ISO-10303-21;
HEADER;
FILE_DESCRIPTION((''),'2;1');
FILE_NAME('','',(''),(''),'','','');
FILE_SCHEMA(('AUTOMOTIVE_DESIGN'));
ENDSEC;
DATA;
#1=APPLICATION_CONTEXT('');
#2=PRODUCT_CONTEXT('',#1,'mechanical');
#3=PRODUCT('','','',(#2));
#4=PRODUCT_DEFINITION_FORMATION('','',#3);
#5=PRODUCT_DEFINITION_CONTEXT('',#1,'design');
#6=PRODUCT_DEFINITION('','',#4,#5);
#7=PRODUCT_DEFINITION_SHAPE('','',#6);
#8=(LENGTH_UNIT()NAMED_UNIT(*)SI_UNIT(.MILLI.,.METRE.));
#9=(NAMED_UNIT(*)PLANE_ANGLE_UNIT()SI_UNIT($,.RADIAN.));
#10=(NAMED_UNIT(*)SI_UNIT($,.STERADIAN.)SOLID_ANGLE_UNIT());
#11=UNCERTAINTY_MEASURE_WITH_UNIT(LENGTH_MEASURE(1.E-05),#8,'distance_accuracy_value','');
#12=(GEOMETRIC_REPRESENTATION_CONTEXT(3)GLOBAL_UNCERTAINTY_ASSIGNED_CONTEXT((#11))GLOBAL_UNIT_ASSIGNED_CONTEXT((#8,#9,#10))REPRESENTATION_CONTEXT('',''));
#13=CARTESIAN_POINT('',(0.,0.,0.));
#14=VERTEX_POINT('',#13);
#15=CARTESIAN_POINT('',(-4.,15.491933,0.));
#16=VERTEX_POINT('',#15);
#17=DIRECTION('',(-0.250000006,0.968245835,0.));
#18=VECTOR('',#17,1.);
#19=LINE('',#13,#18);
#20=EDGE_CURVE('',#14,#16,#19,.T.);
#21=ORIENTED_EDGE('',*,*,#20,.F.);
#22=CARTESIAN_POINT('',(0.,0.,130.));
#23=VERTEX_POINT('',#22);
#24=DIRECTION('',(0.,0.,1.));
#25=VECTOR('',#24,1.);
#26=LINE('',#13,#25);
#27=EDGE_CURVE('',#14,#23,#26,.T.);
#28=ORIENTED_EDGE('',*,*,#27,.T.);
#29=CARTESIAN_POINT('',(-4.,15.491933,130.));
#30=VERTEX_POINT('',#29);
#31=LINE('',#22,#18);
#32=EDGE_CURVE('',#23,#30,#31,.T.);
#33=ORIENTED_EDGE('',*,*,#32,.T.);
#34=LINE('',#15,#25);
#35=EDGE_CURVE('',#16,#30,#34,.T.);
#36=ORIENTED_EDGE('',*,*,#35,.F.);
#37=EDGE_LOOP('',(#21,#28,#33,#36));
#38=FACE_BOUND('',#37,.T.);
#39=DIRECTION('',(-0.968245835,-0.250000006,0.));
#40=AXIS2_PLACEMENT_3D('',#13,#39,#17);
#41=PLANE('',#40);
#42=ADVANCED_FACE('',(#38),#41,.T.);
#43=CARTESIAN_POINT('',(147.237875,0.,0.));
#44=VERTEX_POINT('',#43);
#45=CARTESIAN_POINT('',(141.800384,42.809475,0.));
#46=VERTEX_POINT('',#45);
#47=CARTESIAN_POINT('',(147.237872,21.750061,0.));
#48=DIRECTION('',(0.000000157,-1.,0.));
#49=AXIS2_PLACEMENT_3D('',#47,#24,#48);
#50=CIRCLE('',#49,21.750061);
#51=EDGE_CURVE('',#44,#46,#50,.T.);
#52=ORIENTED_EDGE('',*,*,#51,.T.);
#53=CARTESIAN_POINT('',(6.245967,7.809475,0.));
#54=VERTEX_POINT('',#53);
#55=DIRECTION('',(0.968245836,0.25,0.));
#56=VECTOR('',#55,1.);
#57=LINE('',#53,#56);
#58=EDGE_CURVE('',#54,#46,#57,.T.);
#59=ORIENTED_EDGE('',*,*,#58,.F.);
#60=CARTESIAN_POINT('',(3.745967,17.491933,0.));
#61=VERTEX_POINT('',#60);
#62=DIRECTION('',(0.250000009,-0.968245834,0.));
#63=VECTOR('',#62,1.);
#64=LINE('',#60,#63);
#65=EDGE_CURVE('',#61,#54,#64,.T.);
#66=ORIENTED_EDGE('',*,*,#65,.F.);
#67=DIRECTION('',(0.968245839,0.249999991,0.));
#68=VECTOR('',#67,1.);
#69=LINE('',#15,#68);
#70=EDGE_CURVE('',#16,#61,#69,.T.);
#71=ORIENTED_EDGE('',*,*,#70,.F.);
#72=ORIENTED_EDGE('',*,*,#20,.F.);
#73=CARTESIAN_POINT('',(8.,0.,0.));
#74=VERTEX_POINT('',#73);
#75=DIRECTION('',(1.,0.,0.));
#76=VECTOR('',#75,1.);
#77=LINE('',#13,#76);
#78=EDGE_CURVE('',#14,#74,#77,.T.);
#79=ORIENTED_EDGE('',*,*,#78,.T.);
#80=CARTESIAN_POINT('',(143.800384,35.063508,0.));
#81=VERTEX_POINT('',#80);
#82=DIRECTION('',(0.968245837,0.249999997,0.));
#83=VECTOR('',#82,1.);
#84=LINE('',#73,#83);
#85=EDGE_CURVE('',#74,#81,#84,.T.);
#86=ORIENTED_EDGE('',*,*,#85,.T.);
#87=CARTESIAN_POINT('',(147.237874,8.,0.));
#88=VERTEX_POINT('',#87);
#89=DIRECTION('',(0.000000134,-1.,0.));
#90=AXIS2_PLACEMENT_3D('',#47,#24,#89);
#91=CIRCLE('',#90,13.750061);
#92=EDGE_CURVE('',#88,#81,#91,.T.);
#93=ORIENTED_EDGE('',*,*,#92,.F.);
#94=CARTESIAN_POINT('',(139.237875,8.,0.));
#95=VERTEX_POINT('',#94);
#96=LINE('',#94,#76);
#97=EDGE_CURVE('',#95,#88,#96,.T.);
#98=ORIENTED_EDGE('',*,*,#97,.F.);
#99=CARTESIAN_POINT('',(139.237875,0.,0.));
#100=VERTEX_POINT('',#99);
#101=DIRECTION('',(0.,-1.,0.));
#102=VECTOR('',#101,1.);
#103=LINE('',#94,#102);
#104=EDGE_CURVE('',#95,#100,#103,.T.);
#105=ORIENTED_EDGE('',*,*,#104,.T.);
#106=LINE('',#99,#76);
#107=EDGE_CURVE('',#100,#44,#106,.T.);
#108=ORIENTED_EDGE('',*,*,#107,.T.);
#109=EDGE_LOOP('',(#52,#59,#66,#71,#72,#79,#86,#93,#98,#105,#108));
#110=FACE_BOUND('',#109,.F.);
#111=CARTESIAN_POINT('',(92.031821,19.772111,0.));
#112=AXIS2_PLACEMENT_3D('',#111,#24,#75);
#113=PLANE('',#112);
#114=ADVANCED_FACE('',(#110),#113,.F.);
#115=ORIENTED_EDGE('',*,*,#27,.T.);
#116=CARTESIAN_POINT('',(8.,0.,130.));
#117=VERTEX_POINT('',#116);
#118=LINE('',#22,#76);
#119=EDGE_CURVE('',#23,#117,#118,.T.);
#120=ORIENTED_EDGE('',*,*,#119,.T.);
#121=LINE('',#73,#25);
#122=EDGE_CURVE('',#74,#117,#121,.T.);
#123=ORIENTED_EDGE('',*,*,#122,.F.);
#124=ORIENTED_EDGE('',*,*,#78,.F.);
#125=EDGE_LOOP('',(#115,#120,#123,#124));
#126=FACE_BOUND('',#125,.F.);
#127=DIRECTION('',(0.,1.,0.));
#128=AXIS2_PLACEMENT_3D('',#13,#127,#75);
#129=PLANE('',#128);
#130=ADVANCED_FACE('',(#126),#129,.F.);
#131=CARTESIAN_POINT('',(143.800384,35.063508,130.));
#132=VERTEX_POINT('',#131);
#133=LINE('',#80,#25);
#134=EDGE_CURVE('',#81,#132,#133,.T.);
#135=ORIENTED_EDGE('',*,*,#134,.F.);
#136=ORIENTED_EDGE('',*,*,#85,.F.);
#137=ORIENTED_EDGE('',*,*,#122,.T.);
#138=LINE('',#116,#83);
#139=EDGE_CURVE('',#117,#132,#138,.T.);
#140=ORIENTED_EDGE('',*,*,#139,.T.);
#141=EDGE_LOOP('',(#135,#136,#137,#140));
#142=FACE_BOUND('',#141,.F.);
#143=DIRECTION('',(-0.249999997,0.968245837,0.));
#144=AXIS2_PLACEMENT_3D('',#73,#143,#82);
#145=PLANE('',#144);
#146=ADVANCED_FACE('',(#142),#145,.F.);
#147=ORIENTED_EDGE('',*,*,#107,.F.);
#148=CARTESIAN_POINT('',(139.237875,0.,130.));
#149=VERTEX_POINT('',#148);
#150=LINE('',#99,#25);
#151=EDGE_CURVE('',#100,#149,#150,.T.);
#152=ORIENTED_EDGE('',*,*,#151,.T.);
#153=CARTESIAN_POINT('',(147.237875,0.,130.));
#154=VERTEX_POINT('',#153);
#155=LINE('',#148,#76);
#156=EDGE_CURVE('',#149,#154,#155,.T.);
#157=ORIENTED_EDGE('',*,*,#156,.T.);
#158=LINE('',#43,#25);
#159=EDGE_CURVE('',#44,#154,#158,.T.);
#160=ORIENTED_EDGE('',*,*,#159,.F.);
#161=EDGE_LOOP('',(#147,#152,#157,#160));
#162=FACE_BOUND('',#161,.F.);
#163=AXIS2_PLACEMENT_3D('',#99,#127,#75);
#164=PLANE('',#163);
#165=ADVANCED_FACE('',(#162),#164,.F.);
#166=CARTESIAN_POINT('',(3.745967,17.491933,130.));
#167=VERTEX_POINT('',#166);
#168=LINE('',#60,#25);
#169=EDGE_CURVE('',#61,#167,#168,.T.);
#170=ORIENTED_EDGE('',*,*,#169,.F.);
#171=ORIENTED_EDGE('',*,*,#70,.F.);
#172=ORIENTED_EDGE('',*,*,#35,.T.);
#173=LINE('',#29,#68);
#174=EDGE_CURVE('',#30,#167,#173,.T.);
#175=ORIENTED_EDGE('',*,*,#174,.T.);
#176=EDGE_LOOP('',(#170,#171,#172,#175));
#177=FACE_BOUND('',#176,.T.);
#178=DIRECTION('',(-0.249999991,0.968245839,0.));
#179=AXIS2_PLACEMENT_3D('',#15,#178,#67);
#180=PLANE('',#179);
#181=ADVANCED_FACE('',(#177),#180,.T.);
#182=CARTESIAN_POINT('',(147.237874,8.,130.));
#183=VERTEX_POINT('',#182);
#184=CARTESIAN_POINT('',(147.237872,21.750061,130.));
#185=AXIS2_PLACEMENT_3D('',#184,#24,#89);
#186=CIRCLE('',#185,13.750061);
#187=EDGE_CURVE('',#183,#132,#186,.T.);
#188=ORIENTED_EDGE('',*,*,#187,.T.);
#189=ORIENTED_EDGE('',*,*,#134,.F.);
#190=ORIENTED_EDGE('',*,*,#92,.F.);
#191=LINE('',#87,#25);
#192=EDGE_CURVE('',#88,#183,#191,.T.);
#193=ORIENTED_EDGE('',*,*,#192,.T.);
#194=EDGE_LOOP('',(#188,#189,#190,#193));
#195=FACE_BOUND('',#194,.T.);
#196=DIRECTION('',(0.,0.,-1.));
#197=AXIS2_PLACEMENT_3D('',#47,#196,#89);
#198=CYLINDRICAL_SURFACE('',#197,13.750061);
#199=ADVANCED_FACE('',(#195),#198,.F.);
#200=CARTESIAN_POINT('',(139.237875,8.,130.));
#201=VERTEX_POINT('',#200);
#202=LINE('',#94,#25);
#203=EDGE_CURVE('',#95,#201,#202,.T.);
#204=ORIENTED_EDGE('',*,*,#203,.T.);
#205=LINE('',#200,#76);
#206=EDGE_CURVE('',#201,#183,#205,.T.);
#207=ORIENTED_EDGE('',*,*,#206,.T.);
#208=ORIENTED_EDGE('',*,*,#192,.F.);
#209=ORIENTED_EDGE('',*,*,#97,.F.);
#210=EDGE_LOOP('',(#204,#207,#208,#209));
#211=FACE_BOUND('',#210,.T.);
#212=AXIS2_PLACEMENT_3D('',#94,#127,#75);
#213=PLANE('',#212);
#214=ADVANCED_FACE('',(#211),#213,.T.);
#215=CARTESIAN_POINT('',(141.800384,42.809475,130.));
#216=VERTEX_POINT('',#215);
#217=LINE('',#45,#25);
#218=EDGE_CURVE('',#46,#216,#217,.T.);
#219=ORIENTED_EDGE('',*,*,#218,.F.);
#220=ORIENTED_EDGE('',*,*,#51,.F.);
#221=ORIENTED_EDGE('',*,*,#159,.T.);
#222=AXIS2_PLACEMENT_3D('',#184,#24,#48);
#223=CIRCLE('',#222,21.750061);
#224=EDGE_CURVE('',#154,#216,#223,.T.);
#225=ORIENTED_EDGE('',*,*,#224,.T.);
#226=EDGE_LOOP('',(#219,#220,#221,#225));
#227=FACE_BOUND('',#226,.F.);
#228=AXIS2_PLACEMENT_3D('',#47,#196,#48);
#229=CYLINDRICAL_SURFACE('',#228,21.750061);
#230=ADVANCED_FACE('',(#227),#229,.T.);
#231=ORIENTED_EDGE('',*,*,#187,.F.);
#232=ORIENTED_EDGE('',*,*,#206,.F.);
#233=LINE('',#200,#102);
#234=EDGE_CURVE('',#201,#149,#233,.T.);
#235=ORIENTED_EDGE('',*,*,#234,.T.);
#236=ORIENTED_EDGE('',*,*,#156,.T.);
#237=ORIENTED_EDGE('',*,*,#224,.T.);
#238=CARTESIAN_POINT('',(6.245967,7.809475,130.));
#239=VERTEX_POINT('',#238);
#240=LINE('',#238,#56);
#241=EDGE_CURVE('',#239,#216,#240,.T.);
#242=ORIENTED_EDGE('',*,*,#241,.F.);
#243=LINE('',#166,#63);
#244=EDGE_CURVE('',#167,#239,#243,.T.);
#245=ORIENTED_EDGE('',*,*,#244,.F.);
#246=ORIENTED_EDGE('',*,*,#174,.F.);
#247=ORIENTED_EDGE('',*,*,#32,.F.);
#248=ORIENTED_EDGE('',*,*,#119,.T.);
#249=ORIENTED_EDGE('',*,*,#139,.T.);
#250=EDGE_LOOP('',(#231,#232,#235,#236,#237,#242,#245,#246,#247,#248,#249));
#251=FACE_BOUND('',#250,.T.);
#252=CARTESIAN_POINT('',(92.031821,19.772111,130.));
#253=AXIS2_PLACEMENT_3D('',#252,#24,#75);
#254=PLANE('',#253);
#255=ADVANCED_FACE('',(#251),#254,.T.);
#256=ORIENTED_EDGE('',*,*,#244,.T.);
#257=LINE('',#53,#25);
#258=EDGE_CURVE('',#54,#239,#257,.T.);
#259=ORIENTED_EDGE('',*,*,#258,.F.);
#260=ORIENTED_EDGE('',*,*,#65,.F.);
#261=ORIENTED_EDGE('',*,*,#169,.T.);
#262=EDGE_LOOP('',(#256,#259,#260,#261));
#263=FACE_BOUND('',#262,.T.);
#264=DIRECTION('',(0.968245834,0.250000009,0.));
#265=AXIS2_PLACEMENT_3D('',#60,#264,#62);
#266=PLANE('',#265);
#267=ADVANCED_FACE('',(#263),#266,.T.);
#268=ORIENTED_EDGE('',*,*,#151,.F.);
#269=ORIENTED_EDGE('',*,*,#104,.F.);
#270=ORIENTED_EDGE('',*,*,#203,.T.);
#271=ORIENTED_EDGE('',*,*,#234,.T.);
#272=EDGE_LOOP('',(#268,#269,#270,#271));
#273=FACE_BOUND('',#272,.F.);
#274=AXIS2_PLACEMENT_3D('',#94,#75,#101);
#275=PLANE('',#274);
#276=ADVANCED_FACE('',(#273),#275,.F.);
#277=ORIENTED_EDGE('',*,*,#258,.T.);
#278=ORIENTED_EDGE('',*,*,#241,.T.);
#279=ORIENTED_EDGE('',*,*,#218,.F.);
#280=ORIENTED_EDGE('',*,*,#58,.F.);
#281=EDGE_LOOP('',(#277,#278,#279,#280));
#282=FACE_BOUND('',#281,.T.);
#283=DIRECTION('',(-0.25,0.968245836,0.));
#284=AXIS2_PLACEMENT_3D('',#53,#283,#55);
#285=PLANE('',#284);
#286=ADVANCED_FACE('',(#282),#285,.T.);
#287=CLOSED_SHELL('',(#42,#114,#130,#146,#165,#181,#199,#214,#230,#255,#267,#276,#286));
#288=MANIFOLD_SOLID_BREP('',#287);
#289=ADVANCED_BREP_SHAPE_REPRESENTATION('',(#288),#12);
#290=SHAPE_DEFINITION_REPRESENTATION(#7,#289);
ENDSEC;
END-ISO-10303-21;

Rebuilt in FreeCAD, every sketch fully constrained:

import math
import FreeCAD as App
import Part
import Sketcher
Q = App.Units.Quantity

doc = App.newDocument("Part")
body = doc.addObject("PartDesign::Body", "Body")

# Sketch on XY plane
sketch1 = doc.addObject("Sketcher::SketchObject", "Sketch")
body.addObject(sketch1)
sketch1.AttachmentSupport = (doc.XY_Plane, [""])
sketch1.MapMode = "FlatFace"
sketch1.addGeometry([
    Part.LineSegment(App.Vector(0, 0, 0), App.Vector(8, 0, 0)),  # 0
    Part.LineSegment(App.Vector(8, 0, 0), App.Vector(143.800384, 35.063508, 0)),  # 1
    Part.ArcOfCircle(Part.Circle(App.Vector(147.237872, 21.750061, 0), App.Vector(0, 0, 1), 13.750061), math.radians(-89.999992), math.radians(104.477395)),  # 2
    Part.LineSegment(App.Vector(147.237874, 8, 0), App.Vector(139.237875, 8, 0)),  # 3
    Part.LineSegment(App.Vector(139.237875, 8, 0), App.Vector(139.237875, 0, 0)),  # 4
    Part.LineSegment(App.Vector(139.237875, 0, 0), App.Vector(147.237875, 0, 0)),  # 5
    Part.ArcOfCircle(Part.Circle(App.Vector(147.237872, 21.750061, 0), App.Vector(0, 0, 1), 21.750061), math.radians(-89.999991), math.radians(104.477437)),  # 6
    Part.LineSegment(App.Vector(141.800384, 42.809475, 0), App.Vector(6.245967, 7.809475, 0)),  # 7
    Part.LineSegment(App.Vector(6.245967, 7.809475, 0), App.Vector(3.745967, 17.491933, 0)),  # 8
    Part.LineSegment(App.Vector(3.745967, 17.491933, 0), App.Vector(-4, 15.491933, 0)),  # 9
    Part.LineSegment(App.Vector(-4, 15.491933, 0), App.Vector(0, 0, 0)),  # 10
], False)
sketch1.addConstraint([
    Sketcher.Constraint("Coincident", 0, 2, 1, 1),
    Sketcher.Constraint("Coincident", 1, 2, 2, 2),
    Sketcher.Constraint("Coincident", 2, 1, 3, 1),
    Sketcher.Constraint("Coincident", 3, 2, 4, 1),
    Sketcher.Constraint("Coincident", 4, 2, 5, 1),
    Sketcher.Constraint("Coincident", 5, 2, 6, 1),
    Sketcher.Constraint("Coincident", 6, 2, 7, 1),
    Sketcher.Constraint("Coincident", 7, 2, 8, 1),
    Sketcher.Constraint("Coincident", 8, 2, 9, 1),
    Sketcher.Constraint("Coincident", 9, 2, 10, 1),
    Sketcher.Constraint("Coincident", 10, 2, 0, 1),
    Sketcher.Constraint("Horizontal", 0),
    Sketcher.Constraint("Horizontal", 3),
    Sketcher.Constraint("Vertical", 4),
    Sketcher.Constraint("Horizontal", 5),
    Sketcher.Constraint("Coincident", 10, 2, -1, 1),
    Sketcher.Constraint("Coincident", 6, 3, 2, 3),
    Sketcher.Constraint("PointOnObject", 4, 2, -1),
    Sketcher.Constraint("DistanceX", 0, 1, 0, 2, Q("8 mm")),
    Sketcher.Constraint("DistanceX", 3, 2, 3, 1, Q("7.999999 mm")),
    Sketcher.Constraint("DistanceX", 5, 1, 5, 2, Q("8 mm")),
    Sketcher.Constraint("DistanceY", 4, 2, 4, 1, Q("8 mm")),
    Sketcher.Constraint("Distance", 7, Q("140 mm")),
    Sketcher.Constraint("Distance", 8, Q("10 mm")),
    Sketcher.Constraint("Distance", 9, Q("8 mm")),
    Sketcher.Constraint("Distance", 10, Q("16 mm")),
    Sketcher.Constraint("DistanceX", 9, 2, -1, 1, Q("4 mm")),
    Sketcher.Constraint("DistanceX", 6, 2, 1, 2, Q("2 mm")),
    Sketcher.Constraint("DistanceY", 7, 2, 6, 2, Q("35 mm")),
    Sketcher.Constraint("DistanceY", 9, 2, 8, 2, Q("2 mm")),
    Sketcher.Constraint("DistanceX", 8, 2, 7, 2, Q("2.5 mm")),
    Sketcher.Constraint("Radius", 2, Q("13.750061 mm")),
    Sketcher.Constraint("DistanceX", 1, 2, 2, 1, Q("3.43749 mm")),
])
pad1 = doc.addObject("PartDesign::Pad", "Pad")
body.addObject(pad1)
pad1.Profile = sketch1
pad1.Length = 130

doc.recompute()
